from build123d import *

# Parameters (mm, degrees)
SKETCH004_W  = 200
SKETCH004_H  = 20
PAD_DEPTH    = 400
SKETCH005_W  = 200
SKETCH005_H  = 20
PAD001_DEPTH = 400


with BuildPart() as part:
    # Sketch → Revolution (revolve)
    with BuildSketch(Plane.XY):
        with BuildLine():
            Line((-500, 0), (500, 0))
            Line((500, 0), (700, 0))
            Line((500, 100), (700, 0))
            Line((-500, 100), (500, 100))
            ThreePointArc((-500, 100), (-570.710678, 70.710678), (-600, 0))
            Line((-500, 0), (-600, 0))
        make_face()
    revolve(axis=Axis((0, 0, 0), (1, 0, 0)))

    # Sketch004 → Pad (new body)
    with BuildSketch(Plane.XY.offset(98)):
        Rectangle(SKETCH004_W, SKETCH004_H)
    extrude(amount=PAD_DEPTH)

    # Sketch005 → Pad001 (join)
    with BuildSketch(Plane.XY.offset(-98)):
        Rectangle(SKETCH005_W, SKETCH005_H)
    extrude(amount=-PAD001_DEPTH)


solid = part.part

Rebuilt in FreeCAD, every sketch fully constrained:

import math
import FreeCAD as App
import Part
import Sketcher
from FreeCAD import Vector

doc = App.newDocument("Part")
body = doc.addObject("PartDesign::Body", "Body")

# Sketch on XY plane
sketch1 = doc.addObject("Sketcher::SketchObject", "Sketch")
body.addObject(sketch1)
sketch1.AttachmentSupport = (doc.XY_Plane, [""])
sketch1.MapMode = "FlatFace"
sketch1.addGeometry([
    Part.LineSegment(Vector(700, 0, 0), Vector(500, 100, 0)),
    Part.LineSegment(Vector(500, 100, 0), Vector(-500, 100, 0)),
    Part.ArcOfCircle(Part.Circle(Vector(-500, 0, 0), Vector(0, 0, 1), 100), math.radians(90), math.radians(180)),
    Part.LineSegment(Vector(-600, 0, 0), Vector(700, 0, 0)),
], False)
sketch1.addConstraint([
    Sketcher.Constraint("Coincident", 0, 2, 1, 1),
    Sketcher.Constraint("Tangent", 1, 2, 2, 1),
    Sketcher.Constraint("Coincident", 2, 2, 3, 1),
    Sketcher.Constraint("Coincident", 3, 2, 0, 1),
    Sketcher.Constraint("Horizontal", 1),
    Sketcher.Constraint("Horizontal", 3),
    Sketcher.Constraint("PointOnObject", 2, 3, -1),
    Sketcher.Constraint("PointOnObject", 2, 2, -1),
    Sketcher.Constraint("Radius", 2, 100.0),
    Sketcher.Constraint("DistanceX", 1, 2, 1, 1, 1000.0),
    Sketcher.Constraint("DistanceX", 3, 1, 3, 2, 1300.0),
    Sketcher.Constraint("DistanceX", 2, 3, -1, 1, 500.0),
])
revolution = doc.addObject("PartDesign::Revolution", "Revolution")
body.addObject(revolution)
revolution.Profile = sketch1
revolution.ReferenceAxis = (sketch1, ["H_Axis"])
revolution.Angle = 360

# Sketch on XY plane
sketch2 = doc.addObject("Sketcher::SketchObject", "Sketch001")
body.addObject(sketch2)
sketch2.AttachmentSupport = (doc.XY_Plane, [""])
sketch2.MapMode = "FlatFace"
sketch2.AttachmentOffset = App.Placement(Vector(0, 0, 98), App.Rotation())
sketch2.addGeometry([
    Part.LineSegment(Vector(-100, 10, 0), Vector(-100, -10, 0)),
    Part.LineSegment(Vector(-100, -10, 0), Vector(100, -10, 0)),
    Part.LineSegment(Vector(100, -10, 0), Vector(100, 10, 0)),
    Part.LineSegment(Vector(100, 10, 0), Vector(-100, 10, 0)),
], False)
sketch2.addConstraint([
    Sketcher.Constraint("Coincident", 0, 2, 1, 1),
    Sketcher.Constraint("Coincident", 1, 2, 2, 1),
    Sketcher.Constraint("Coincident", 2, 2, 3, 1),
    Sketcher.Constraint("Coincident", 3, 2, 0, 1),
    Sketcher.Constraint("Vertical", 0),
    Sketcher.Constraint("Horizontal", 1),
    Sketcher.Constraint("Vertical", 2),
    Sketcher.Constraint("Horizontal", 3),
    Sketcher.Constraint("Symmetric", 0, 2, 2, 2, -1, 1),
    Sketcher.Constraint("DistanceX", 1, 1, 1, 2, 200.0),
    Sketcher.Constraint("DistanceY", 0, 2, 0, 1, 20.0),
])
pad1 = doc.addObject("PartDesign::Pad", "Pad")
body.addObject(pad1)
pad1.Profile = sketch2
pad1.Length = 400

# Sketch on XY plane
sketch3 = doc.addObject("Sketcher::SketchObject", "Sketch002")
body.addObject(sketch3)
sketch3.AttachmentSupport = (doc.XY_Plane, [""])
sketch3.MapMode = "FlatFace"
sketch3.AttachmentOffset = App.Placement(Vector(0, 0, -98), App.Rotation())
sketch3.addGeometry([
    Part.LineSegment(Vector(-100, 10, 0), Vector(-100, -10, 0)),
    Part.LineSegment(Vector(-100, -10, 0), Vector(100, -10, 0)),
    Part.LineSegment(Vector(100, -10, 0), Vector(100, 10, 0)),
    Part.LineSegment(Vector(100, 10, 0), Vector(-100, 10, 0)),
], False)
sketch3.addConstraint([
    Sketcher.Constraint("Coincident", 0, 2, 1, 1),
    Sketcher.Constraint("Coincident", 1, 2, 2, 1),
    Sketcher.Constraint("Coincident", 2, 2, 3, 1),
    Sketcher.Constraint("Coincident", 3, 2, 0, 1),
    Sketcher.Constraint("Vertical", 0),
    Sketcher.Constraint("Horizontal", 1),
    Sketcher.Constraint("Vertical", 2),
    Sketcher.Constraint("Horizontal", 3),
    Sketcher.Constraint("Symmetric", 0, 2, 2, 2, -1, 1),
    Sketcher.Constraint("DistanceX", 1, 1, 1, 2, 200.0),
    Sketcher.Constraint("DistanceY", 0, 2, 0, 1, 20.0),
])
pad2 = doc.addObject("PartDesign::Pad", "Pad001")
body.addObject(pad2)
pad2.Profile = sketch3
pad2.Length = 400
pad2.Reversed = True

doc.recompute()
